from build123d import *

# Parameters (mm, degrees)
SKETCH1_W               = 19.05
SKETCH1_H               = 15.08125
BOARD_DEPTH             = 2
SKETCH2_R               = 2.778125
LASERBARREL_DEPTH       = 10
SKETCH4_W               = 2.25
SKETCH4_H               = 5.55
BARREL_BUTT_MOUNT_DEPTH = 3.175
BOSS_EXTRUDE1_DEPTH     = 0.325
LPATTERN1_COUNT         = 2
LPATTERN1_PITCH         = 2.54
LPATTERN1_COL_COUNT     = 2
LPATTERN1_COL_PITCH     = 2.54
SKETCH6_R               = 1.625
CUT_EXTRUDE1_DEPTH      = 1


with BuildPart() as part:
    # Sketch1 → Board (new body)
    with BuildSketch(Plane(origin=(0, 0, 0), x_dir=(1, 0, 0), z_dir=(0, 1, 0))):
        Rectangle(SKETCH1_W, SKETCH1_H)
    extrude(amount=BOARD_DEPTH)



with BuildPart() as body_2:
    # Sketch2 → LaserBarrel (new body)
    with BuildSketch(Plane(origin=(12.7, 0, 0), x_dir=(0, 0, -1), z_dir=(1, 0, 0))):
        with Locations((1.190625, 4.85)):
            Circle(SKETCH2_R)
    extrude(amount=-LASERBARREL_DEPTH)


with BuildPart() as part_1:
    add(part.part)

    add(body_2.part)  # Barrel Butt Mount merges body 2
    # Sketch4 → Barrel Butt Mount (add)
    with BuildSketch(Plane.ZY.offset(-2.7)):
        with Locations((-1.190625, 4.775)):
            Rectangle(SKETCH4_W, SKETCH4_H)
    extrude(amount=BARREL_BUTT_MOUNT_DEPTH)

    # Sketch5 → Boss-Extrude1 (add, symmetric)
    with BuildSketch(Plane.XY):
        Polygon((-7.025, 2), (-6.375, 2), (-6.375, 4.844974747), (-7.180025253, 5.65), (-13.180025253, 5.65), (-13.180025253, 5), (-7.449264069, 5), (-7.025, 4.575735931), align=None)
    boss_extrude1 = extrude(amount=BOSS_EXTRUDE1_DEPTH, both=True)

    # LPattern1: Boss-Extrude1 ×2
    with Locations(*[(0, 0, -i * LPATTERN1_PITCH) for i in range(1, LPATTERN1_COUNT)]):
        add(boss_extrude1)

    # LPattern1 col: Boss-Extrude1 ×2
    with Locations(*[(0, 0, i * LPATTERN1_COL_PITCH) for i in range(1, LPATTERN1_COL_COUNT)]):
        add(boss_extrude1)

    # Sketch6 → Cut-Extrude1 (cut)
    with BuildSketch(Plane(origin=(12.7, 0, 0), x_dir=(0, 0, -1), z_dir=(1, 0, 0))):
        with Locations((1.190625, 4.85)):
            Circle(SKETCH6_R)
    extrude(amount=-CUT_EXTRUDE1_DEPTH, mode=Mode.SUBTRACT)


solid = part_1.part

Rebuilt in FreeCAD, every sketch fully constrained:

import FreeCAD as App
import Part
import Sketcher
from FreeCAD import Vector
Q = App.Units.Quantity


def add_polygon(sketch, points):
    """Adds a closed chain of lines whose ends are joined by coincident constraints."""
    first, n = sketch.GeometryCount, len(points)
    for a, b in zip(points, points[1:] + points[:1]):
        sketch.addGeometry(Part.LineSegment(App.Vector(*a, 0), App.Vector(*b, 0)), False)
    for i in range(n):
        sketch.addConstraint(Sketcher.Constraint("Coincident", first + i, 2, first + (i + 1) % n, 1))

doc = App.newDocument("Part")
params = doc.addObject("Spreadsheet::Sheet", "Params")
for row, (alias, value) in enumerate([
    ("sketch1_width", "19.05 mm"),
    ("pad1_length", "2 mm"),
    ("pad2_length", "10 mm"),
    ("sketch3_width", "5.55 mm"),
    ("sketch3_height", "2.25 mm"),
    ("pad3_length", "3.175 mm"),
    ("sketch4_width", "6 mm"),
    ("sketch4_length", "0.6 mm"),
    ("sketch4_width2", "0.65 mm"),
    ("pad4_length", "0.65 mm"),
    ("linearpattern_pitch", "2.54 mm"),
    ("linearpattern2_pitch", "2.54 mm"),
    ("sketch5_diameter", "3.25 mm"),
    ("pocket1_length", "1 mm"),
], start=1):
    params.set(f"A{row}", alias)
    params.set(f"B{row}", "=" + value)
    params.setAlias(f"B{row}", alias)

body = doc.addObject("PartDesign::Body", "Body")

# Sketch on XZ plane
sketch1 = body.newObject("Sketcher::SketchObject", "Sketch")
sketch1.AttachmentSupport = (doc.getObject("XZ_Plane"), [""])
sketch1.MapMode = "FlatFace"
add_polygon(sketch1, [(-10, -8), (-10, 8), (10, 8), (10, -8)])  # lines 0-3
sketch1.addConstraint([
    Sketcher.Constraint("Vertical", 0),
    Sketcher.Constraint("Horizontal", 1),
    Sketcher.Constraint("Vertical", 2),
    Sketcher.Constraint("Horizontal", 3),
    Sketcher.Constraint("Symmetric", 0, 2, 2, 2, -1, 1),
    Sketcher.Constraint("DistanceX", 1, 1, 1, 2, 19.05),
    Sketcher.Constraint("DistanceY", 0, 1, 0, 2, 15.08125),
])
sketch1.setExpression("Constraints[9]", "Params.sketch1_width")
pad1 = body.newObject("PartDesign::Pad", "Pad")
pad1.Profile = sketch1
pad1.setExpression("Length", "Params.pad1_length")
pad1.Reversed = True
body2 = doc.addObject("PartDesign::Body", "Body001")

# Sketch on YZ plane
sketch2 = body2.newObject("Sketcher::SketchObject", "Sketch001")
sketch2.AttachmentSupport = (doc.getObject("YZ_Plane001"), [""])
sketch2.MapMode = "FlatFace"
sketch2.AttachmentOffset = App.Placement(Vector(0, 0, 12.7), App.Rotation())
sketch2.addGeometry(Part.Circle(Vector(4.8, -1.2, 0), Vector(0, 0, 1), 2.8), False)
sketch2.addConstraint([
    Sketcher.Constraint("Diameter", 0, 5.55625),
    Sketcher.Constraint("DistanceX", -1, 1, 0, 3, 4.85),
    Sketcher.Constraint("DistanceY", 0, 3, -1, 1, 1.190625),
])
pad2 = body2.newObject("PartDesign::Pad", "Pad001")
pad2.Profile = sketch2
pad2.setExpression("Length", "Params.pad2_length")
pad2.Reversed = True
body.AllowCompound = True
doc.recompute()

boolean = body.newObject("PartDesign::Boolean", "Boolean")
boolean.Type = "Fuse"
boolean.addObjects([body2])

# Sketch on YZ plane
sketch3 = body.newObject("Sketcher::SketchObject", "Sketch002")
sketch3.AttachmentSupport = (doc.getObject("YZ_Plane"), [""])
sketch3.MapMode = "FlatFace"
sketch3.AttachmentOffset = App.Placement(Vector(0, 0, 2.7), App.Rotation())
add_polygon(sketch3, [(7.5, -2.3), (2, -2.3), (2, -0.1), (7.5, -0.1)])  # lines 0-3
sketch3.addConstraint([
    Sketcher.Constraint("Horizontal", 0),
    Sketcher.Constraint("Vertical", 1),
    Sketcher.Constraint("Horizontal", 2),
    Sketcher.Constraint("Vertical", 3),
    Sketcher.Constraint("DistanceX", -1, 1, 0, 2, 2.0),
    Sketcher.Constraint("DistanceX", 0, 2, 0, 1, 5.55),
    Sketcher.Constraint("DistanceY", 1, 1, 1, 2, 2.25),
    Sketcher.Constraint("DistanceY", 0, 2, -1, 1, 2.315625),
])
sketch3.setExpression("Constraints[9]", "Params.sketch3_width")
sketch3.setExpression("Constraints[10]", "Params.sketch3_height")
pad3 = body.newObject("PartDesign::Pad", "Pad002")
pad3.Profile = sketch3
pad3.setExpression("Length", "Params.pad3_length")
pad3.Reversed = True

# Sketch on XY plane
sketch4 = body.newObject("Sketcher::SketchObject", "Sketch003")
sketch4.AttachmentSupport = (doc.getObject("XY_Plane"), [""])
sketch4.MapMode = "FlatFace"
add_polygon(sketch4, [(-7, 2), (-6.4, 2), (-6.4, 4.8), (-7.2, 5.7), (-13.2, 5.7), (-13.2, 5), (-7.4, 5), (-7, 4.6)])  # lines 0-7
sketch4.addConstraint([
    Sketcher.Constraint("Horizontal", 0),
    Sketcher.Constraint("Vertical", 1),
    Sketcher.Constraint("Horizontal", 3),
    Sketcher.Constraint("Vertical", 4),
    Sketcher.Constraint("Horizontal", 5),
    Sketcher.Constraint("Vertical", 7),
    Sketcher.Constraint("Parallel", 2, 6),
    Sketcher.Constraint("Equal", 0, 4),
    Sketcher.Constraint("DistanceX", 3, 2, 3, 1, 6.0),
    Sketcher.Constraint("Angle", 2, Q("135 deg")),
    Sketcher.Constraint("DistanceY", -1, 1, 0, 2, 2.0),
    Sketcher.Constraint("DistanceY", -1, 1, 4, 2, 5.0),
    Sketcher.Constraint("Distance", 6, 0.6),
    Sketcher.Constraint("DistanceX", 0, 1, 0, 2, 0.65),
    Sketcher.Constraint("DistanceX", 0, 2, -1, 1, 6.375),
    Sketcher.Constraint("DistanceX", 5, 1, 5, 2, 5.730761),
])
sketch4.setExpression("Constraints[16]", "Params.sketch4_width")
sketch4.setExpression("Constraints[20]", "Params.sketch4_length")
sketch4.setExpression("Constraints[21]", "Params.sketch4_width2")
pad4 = body.newObject("PartDesign::Pad", "Pad003")
pad4.Profile = sketch4
pad4.setExpression("Length", "Params.pad4_length")
pad4.Midplane = True
doc.recompute()

linearpattern = body.newObject("PartDesign::LinearPattern", "LinearPattern")
linearpattern.Originals = [pad4]
linearpattern.Direction = (doc.getObject("Z_Axis"), [""])
linearpattern.Mode = "offset"
linearpattern.setExpression("Offset", "Params.linearpattern_pitch")
linearpattern.Occurrences = 2
linearpattern.Reversed = True
body.Tip = linearpattern
doc.recompute()

linearpattern2 = body.newObject("PartDesign::LinearPattern", "LinearPattern001")
linearpattern2.Originals = [pad4]
linearpattern2.Direction = (doc.getObject("Z_Axis"), [""])
linearpattern2.Mode = "offset"
linearpattern2.setExpression("Offset", "Params.linearpattern2_pitch")
linearpattern2.Occurrences = 2
body.Tip = linearpattern2

# Sketch on YZ plane
sketch5 = body.newObject("Sketcher::SketchObject", "Sketch004")
sketch5.AttachmentSupport = (doc.getObject("YZ_Plane"), [""])
sketch5.MapMode = "FlatFace"
sketch5.AttachmentOffset = App.Placement(Vector(0, 0, 12.7), App.Rotation())
sketch5.addGeometry(Part.Circle(Vector(4.8, -1.2, 0), Vector(0, 0, 1), 1.6), False)
sketch5.addConstraint([
    Sketcher.Constraint("Diameter", 0, 3.25),
    Sketcher.Constraint("DistanceX", -1, 1, 0, 3, 4.85),
    Sketcher.Constraint("DistanceY", 0, 3, -1, 1, 1.190625),
])
sketch5.setExpression("Constraints[0]", "Params.sketch5_diameter")
pocket1 = body.newObject("PartDesign::Pocket", "Pocket")
pocket1.Profile = sketch5
pocket1.setExpression("Length", "Params.pocket1_length")

doc.recompute()
